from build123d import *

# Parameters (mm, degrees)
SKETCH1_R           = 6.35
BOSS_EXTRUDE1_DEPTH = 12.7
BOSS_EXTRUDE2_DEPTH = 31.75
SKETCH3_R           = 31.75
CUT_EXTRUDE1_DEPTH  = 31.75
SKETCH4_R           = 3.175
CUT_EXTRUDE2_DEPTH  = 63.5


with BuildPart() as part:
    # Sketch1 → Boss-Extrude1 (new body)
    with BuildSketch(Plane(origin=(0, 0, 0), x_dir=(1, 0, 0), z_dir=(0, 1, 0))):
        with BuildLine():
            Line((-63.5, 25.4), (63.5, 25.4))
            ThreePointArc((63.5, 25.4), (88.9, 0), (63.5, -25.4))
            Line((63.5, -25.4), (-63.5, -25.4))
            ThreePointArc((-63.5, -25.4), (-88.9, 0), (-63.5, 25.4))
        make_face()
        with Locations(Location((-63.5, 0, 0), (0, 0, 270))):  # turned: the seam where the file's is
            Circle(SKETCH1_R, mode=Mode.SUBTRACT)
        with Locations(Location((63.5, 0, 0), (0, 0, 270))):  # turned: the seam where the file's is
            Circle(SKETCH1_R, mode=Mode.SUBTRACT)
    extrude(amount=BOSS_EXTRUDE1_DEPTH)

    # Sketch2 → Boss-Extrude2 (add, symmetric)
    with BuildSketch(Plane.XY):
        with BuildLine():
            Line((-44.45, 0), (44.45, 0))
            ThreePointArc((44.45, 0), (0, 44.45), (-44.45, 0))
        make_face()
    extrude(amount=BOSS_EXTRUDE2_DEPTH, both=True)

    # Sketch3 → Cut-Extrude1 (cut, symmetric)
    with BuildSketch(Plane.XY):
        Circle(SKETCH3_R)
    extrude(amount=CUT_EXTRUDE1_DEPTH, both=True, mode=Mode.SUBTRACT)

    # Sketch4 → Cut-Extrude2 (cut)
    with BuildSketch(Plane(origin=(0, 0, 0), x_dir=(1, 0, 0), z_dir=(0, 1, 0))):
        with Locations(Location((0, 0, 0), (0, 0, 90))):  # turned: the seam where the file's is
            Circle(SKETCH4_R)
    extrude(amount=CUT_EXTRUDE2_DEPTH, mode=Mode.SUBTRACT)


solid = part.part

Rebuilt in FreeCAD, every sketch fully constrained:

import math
import FreeCAD as App
import Part
import Sketcher

V = App.Vector
Q = App.Units.Quantity

doc = App.newDocument("Part")
params = doc.addObject("Spreadsheet::Sheet", "Params")
for row, (alias, value) in enumerate([
    ("sketch1_radius", "1 in"),
    ("sketch1_diameter", "0.5 in"),
    ("sketch1_width", "5 in"),
    ("pad1_length", "0.5 in"),
    ("sketch2_radius", "1.75 in"),
    ("pad2_length", "2.5 in"),
    ("sketch3_diameter", "2.5 in"),
    ("pocket1_length", "2.5 in"),
    ("sketch4_diameter", "0.25 in"),
    ("pocket2_length", "2.5 in"),
], start=1):
    params.set(f"A{row}", alias)
    params.set(f"B{row}", "=" + value)
    params.setAlias(f"B{row}", alias)

body = doc.addObject("PartDesign::Body", "Body")

# Sketch on XZ plane
sketch1 = body.newObject("Sketcher::SketchObject", "Sketch")
sketch1.AttachmentSupport = (doc.getObject("XZ_Plane"), [""])
sketch1.MapMode = "FlatFace"
sketch1.addGeometry(Part.LineSegment(V(64, -25, 0), V(-64, -25, 0)), False)
sketch1.addGeometry(Part.ArcOfCircle(Part.Circle(V(-64, 0, 0), V(0, 0, 1), 25), math.radians(90), math.radians(270)), False)
sketch1.addGeometry(Part.LineSegment(V(-64, 25, 0), V(64, 25, 0)), False)
sketch1.addGeometry(Part.ArcOfCircle(Part.Circle(V(64, 0, 0), V(0, 0, 1), 25), math.radians(-90), math.radians(90)), False)
sketch1.addGeometry(Part.Circle(V(64, 0, 0), V(0, 0, 1), 6), False)
sketch1.addGeometry(Part.Circle(V(-64, 0, 0), V(0, 0, 1), 6), False)
sketch1.addConstraint(Sketcher.Constraint("Tangent", 0, 2, 1, 2))
sketch1.addConstraint(Sketcher.Constraint("Tangent", 1, 1, 2, 1))
sketch1.addConstraint(Sketcher.Constraint("Tangent", 2, 2, 3, 2))
sketch1.addConstraint(Sketcher.Constraint("Tangent", 3, 1, 0, 1))
sketch1.addConstraint(Sketcher.Constraint("Horizontal", 0))
sketch1.addConstraint(Sketcher.Constraint("Horizontal", 2))
sketch1.addConstraint(Sketcher.Constraint("Coincident", 4, 3, 3, 3))
sketch1.addConstraint(Sketcher.Constraint("Coincident", 5, 3, 1, 3))
sketch1.addConstraint(Sketcher.Constraint("Equal", 4, 5))
sketch1.addConstraint(Sketcher.Constraint("Symmetric", 1, 3, 3, 3, -1, 1))
sketch1.addConstraint(Sketcher.Constraint("Radius", 1, Q("1 in")))
sketch1.addConstraint(Sketcher.Constraint("Diameter", 4, Q("0.5 in")))
sketch1.addConstraint(Sketcher.Constraint("DistanceX", 0, 2, 0, 1, Q("5 in")))
sketch1.setExpression("Constraints[10]", "Params.sketch1_radius")
sketch1.setExpression("Constraints[11]", "Params.sketch1_diameter")
sketch1.setExpression("Constraints[12]", "Params.sketch1_width")
pad1 = body.newObject("PartDesign::Pad", "Pad")
pad1.Profile = sketch1
pad1.setExpression("Length", "Params.pad1_length")
pad1.Reversed = True

# Sketch on XY plane
sketch2 = body.newObject("Sketcher::SketchObject", "Sketch001")
sketch2.AttachmentSupport = (doc.getObject("XY_Plane"), [""])
sketch2.MapMode = "FlatFace"
sketch2.addGeometry(Part.LineSegment(V(-44, 0, 0), V(44, 0, 0)), False)
sketch2.addGeometry(Part.ArcOfCircle(Part.Circle(V(0, 0, 0), V(0, 0, 1), 44), math.radians(0), math.radians(180)), False)
sketch2.addConstraint(Sketcher.Constraint("Coincident", 0, 1, 1, 2))
sketch2.addConstraint(Sketcher.Constraint("Coincident", 1, 1, 0, 2))
sketch2.addConstraint(Sketcher.Constraint("Horizontal", 0))
sketch2.addConstraint(Sketcher.Constraint("Coincident", 1, 3, -1, 1))
sketch2.addConstraint(Sketcher.Constraint("PointOnObject", 0, 1, -1))
sketch2.addConstraint(Sketcher.Constraint("Radius", 1, Q("1.75 in")))
sketch2.setExpression("Constraints[5]", "Params.sketch2_radius")
pad2 = body.newObject("PartDesign::Pad", "Pad001")
pad2.Profile = sketch2
pad2.setExpression("Length", "Params.pad2_length")
pad2.Midplane = True

# Sketch on XY plane
sketch3 = body.newObject("Sketcher::SketchObject", "Sketch002")
sketch3.AttachmentSupport = (doc.getObject("XY_Plane"), [""])
sketch3.MapMode = "FlatFace"
sketch3.addGeometry(Part.Circle(V(0, 0, 0), V(0, 0, 1), 32), False)
sketch3.addConstraint(Sketcher.Constraint("Coincident", 0, 3, -1, 1))
sketch3.addConstraint(Sketcher.Constraint("Diameter", 0, Q("2.5 in")))
sketch3.setExpression("Constraints[1]", "Params.sketch3_diameter")
pocket1 = body.newObject("PartDesign::Pocket", "Pocket")
pocket1.Profile = sketch3
pocket1.setExpression("Length", "Params.pocket1_length")
pocket1.Midplane = True

# Sketch on XZ plane
sketch4 = body.newObject("Sketcher::SketchObject", "Sketch003")
sketch4.AttachmentSupport = (doc.getObject("XZ_Plane"), [""])
sketch4.MapMode = "FlatFace"
sketch4.addGeometry(Part.Circle(V(0, 0, 0), V(0, 0, 1), 3.2), False)
sketch4.addConstraint(Sketcher.Constraint("Coincident", 0, 3, -1, 1))
sketch4.addConstraint(Sketcher.Constraint("Diameter", 0, Q("0.25 in")))
sketch4.setExpression("Constraints[1]", "Params.sketch4_diameter")
pocket2 = body.newObject("PartDesign::Pocket", "Pocket001")
pocket2.Profile = sketch4
pocket2.setExpression("Length", "Params.pocket2_length")

doc.recompute()
